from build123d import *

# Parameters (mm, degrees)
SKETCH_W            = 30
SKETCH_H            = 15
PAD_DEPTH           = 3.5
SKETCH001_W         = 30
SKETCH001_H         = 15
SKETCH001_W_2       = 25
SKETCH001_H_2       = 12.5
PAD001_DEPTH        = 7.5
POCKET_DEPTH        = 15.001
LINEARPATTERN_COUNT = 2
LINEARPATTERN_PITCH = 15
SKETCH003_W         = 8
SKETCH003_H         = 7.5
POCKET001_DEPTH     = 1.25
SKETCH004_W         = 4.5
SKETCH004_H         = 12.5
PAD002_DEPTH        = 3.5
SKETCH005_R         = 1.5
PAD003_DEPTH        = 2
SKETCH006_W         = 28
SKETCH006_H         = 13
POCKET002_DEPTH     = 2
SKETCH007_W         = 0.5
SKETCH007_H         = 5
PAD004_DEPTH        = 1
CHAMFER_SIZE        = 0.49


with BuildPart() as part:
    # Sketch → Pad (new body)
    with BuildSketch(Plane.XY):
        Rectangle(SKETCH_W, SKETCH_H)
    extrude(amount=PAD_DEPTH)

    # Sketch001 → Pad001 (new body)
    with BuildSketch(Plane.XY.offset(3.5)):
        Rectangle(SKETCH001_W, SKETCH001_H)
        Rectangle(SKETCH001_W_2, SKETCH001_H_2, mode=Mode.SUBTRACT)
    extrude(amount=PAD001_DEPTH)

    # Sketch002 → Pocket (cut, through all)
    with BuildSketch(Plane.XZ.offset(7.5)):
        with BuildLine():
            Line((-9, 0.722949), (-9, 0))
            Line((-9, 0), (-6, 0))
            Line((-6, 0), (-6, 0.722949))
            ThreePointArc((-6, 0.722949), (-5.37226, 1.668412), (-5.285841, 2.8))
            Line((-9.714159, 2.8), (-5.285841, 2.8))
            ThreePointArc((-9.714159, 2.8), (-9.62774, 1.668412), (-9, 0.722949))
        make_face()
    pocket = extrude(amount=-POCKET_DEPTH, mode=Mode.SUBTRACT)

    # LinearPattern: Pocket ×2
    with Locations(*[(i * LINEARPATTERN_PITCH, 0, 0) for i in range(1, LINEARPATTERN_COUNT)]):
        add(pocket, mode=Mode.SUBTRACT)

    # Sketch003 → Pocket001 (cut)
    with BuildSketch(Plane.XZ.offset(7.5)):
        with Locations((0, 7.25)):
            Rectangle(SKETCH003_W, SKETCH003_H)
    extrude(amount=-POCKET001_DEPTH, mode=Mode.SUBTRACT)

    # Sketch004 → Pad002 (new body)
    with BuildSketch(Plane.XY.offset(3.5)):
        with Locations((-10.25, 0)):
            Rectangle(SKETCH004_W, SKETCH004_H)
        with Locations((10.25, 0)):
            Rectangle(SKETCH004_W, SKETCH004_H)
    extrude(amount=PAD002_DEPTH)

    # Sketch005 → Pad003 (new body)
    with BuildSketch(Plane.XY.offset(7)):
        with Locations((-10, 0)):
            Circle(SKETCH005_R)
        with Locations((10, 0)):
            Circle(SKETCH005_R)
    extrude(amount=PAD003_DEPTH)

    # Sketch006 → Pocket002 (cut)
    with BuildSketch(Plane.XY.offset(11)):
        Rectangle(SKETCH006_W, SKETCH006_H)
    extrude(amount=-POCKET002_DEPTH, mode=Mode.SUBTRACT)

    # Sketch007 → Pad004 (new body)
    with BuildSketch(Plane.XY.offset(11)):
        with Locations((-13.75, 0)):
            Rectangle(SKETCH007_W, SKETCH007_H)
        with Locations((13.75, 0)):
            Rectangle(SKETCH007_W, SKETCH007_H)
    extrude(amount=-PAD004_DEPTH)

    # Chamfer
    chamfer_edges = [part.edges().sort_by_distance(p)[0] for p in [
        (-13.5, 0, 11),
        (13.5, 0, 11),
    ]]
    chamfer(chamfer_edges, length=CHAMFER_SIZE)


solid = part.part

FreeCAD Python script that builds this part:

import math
import FreeCAD as App
import Part
import Sketcher

V = App.Vector


def edges_at(feature, points):
    """Names of the edges that pass closest to the given points."""
    edges = feature.Shape.Edges
    near = lambda p: min(range(len(edges)), key=lambda i: edges[i].distToShape(Part.Vertex(*p))[0])
    return sorted({f"Edge{near(p) + 1}" for p in points})

doc = App.newDocument("Part")
params = doc.addObject("Spreadsheet::Sheet", "Params")
for row, (alias, value) in enumerate([
    ("sketch1_width", "30 mm"),
    ("sketch1_height", "15 mm"),
    ("pad1_length", "3.5 mm"),
    ("sketch2_width", "30 mm"),
    ("sketch2_width2", "25 mm"),
    ("sketch2_height", "15 mm"),
    ("sketch2_height2", "12.5 mm"),
    ("pad2_length", "7.5 mm"),
    ("sketch3_width", "3 mm"),
    ("linearpattern_pitch", "15 mm"),
    ("sketch4_width", "8 mm"),
    ("sketch4_height", "7.5 mm"),
    ("pocket2_length", "1.25 mm"),
    ("sketch5_width", "4.5 mm"),
    ("sketch5_height", "12.5 mm"),
    ("pad3_length", "3.5 mm"),
    ("sketch6_diameter", "3 mm"),
    ("pad4_length", "2 mm"),
    ("sketch7_width", "28 mm"),
    ("sketch7_height", "13 mm"),
    ("pocket3_length", "2 mm"),
    ("sketch8_height", "5 mm"),
    ("sketch8_width", "0.5 mm"),
    ("pad5_length", "1 mm"),
    ("chamfer_size", "0.49 mm"),
], start=1):
    params.set(f"A{row}", alias)
    params.set(f"B{row}", "=" + value)
    params.setAlias(f"B{row}", alias)

body = doc.addObject("PartDesign::Body", "Body")

sketch1 = doc.addObject("Sketcher::SketchObject", "Sketch")
body.addObject(sketch1)
sketch1.AttachmentSupport = (doc.XY_Plane, [""])
sketch1.MapMode = "FlatFace"
sketch1.addGeometry([
    Part.LineSegment(V(-15, 7.5, 0), V(-15, -7.5, 0)),
    Part.LineSegment(V(-15, -7.5, 0), V(15, -7.5, 0)),
    Part.LineSegment(V(15, -7.5, 0), V(15, 7.5, 0)),
    Part.LineSegment(V(15, 7.5, 0), V(-15, 7.5, 0)),
], False)
sketch1.addConstraint([
    Sketcher.Constraint("Coincident", 0, 2, 1, 1),
    Sketcher.Constraint("Coincident", 1, 2, 2, 1),
    Sketcher.Constraint("Coincident", 2, 2, 3, 1),
    Sketcher.Constraint("Coincident", 3, 2, 0, 1),
    Sketcher.Constraint("Vertical", 0),
    Sketcher.Constraint("Horizontal", 1),
    Sketcher.Constraint("Vertical", 2),
    Sketcher.Constraint("Horizontal", 3),
    Sketcher.Constraint("Symmetric", 0, 2, 2, 2, -1, 1),
    Sketcher.Constraint("DistanceX", 1, 1, 1, 2, 30.0),
    Sketcher.Constraint("DistanceY", 0, 2, 0, 1, 15.0),
])
sketch1.setExpression("Constraints[9]", "Params.sketch1_width")
sketch1.setExpression("Constraints[10]", "Params.sketch1_height")
pad1 = doc.addObject("PartDesign::Pad", "Pad")
body.addObject(pad1)
pad1.Profile = sketch1
pad1.setExpression("Length", "Params.pad1_length")

sketch2 = doc.addObject("Sketcher::SketchObject", "Sketch001")
body.addObject(sketch2)
sketch2.AttachmentSupport = (doc.XY_Plane, [""])
sketch2.MapMode = "FlatFace"
sketch2.AttachmentOffset = App.Placement(V(0, 0, 3.5), App.Rotation())
sketch2.addGeometry([
    Part.LineSegment(V(-15, 7.5, 0), V(-15, -7.5, 0)),
    Part.LineSegment(V(-15, -7.5, 0), V(15, -7.5, 0)),
    Part.LineSegment(V(15, -7.5, 0), V(15, 7.5, 0)),
    Part.LineSegment(V(15, 7.5, 0), V(-15, 7.5, 0)),
    Part.LineSegment(V(12.5, -6.25, 0), V(-12.5, -6.25, 0)),
    Part.LineSegment(V(-12.5, -6.25, 0), V(-12.5, 6.25, 0)),
    Part.LineSegment(V(-12.5, 6.25, 0), V(12.5, 6.25, 0)),
    Part.LineSegment(V(12.5, 6.25, 0), V(12.5, -6.25, 0)),
], False)
sketch2.addConstraint([
    Sketcher.Constraint("Coincident", 0, 2, 1, 1),
    Sketcher.Constraint("Coincident", 1, 2, 2, 1),
    Sketcher.Constraint("Coincident", 2, 2, 3, 1),
    Sketcher.Constraint("Coincident", 3, 2, 0, 1),
    Sketcher.Constraint("Coincident", 4, 2, 5, 1),
    Sketcher.Constraint("Coincident", 5, 2, 6, 1),
    Sketcher.Constraint("Coincident", 6, 2, 7, 1),
    Sketcher.Constraint("Coincident", 7, 2, 4, 1),
    Sketcher.Constraint("Vertical", 0),
    Sketcher.Constraint("Horizontal", 1),
    Sketcher.Constraint("Vertical", 2),
    Sketcher.Constraint("Horizontal", 3),
    Sketcher.Constraint("Horizontal", 4),
    Sketcher.Constraint("Vertical", 5),
    Sketcher.Constraint("Horizontal", 6),
    Sketcher.Constraint("Vertical", 7),
    Sketcher.Constraint("Symmetric", 0, 2, 2, 2, -1, 1),
    Sketcher.Constraint("Symmetric", 4, 2, 6, 2, -1, 1),
    Sketcher.Constraint("DistanceX", 1, 1, 1, 2, 30.0),
    Sketcher.Constraint("DistanceX", 4, 2, 4, 1, 25.0),
    Sketcher.Constraint("DistanceY", 0, 2, 0, 1, 15.0),
    Sketcher.Constraint("DistanceY", 5, 1, 5, 2, 12.5),
])
sketch2.setExpression("Constraints[18]", "Params.sketch2_width")
sketch2.setExpression("Constraints[19]", "Params.sketch2_width2")
sketch2.setExpression("Constraints[20]", "Params.sketch2_height")
sketch2.setExpression("Constraints[21]", "Params.sketch2_height2")
pad2 = doc.addObject("PartDesign::Pad", "Pad001")
body.addObject(pad2)
pad2.Profile = sketch2
pad2.setExpression("Length", "Params.pad2_length")

sketch3 = doc.addObject("Sketcher::SketchObject", "Sketch002")
body.addObject(sketch3)
sketch3.AttachmentSupport = (doc.XZ_Plane, [""])
sketch3.MapMode = "FlatFace"
sketch3.AttachmentOffset = App.Placement(V(0, 0, 7.5), App.Rotation())
sketch3.addGeometry([
    Part.LineSegment(V(-9, 0.722949, 0), V(-9, 0, 0)),
    Part.LineSegment(V(-9, 0, 0), V(-6, 0, 0)),
    Part.LineSegment(V(-6, 0, 0), V(-6, 0.722949, 0)),
    Part.ArcOfCircle(Part.Circle(V(-7.500003, 2.400001, 0), V(0, 0, 1), 2.250002), math.radians(-48.189652), math.radians(10.240314)),
    Part.LineSegment(V(-5.285841, 2.8, 0), V(-9.714159, 2.8, 0)),
    Part.ArcOfCircle(Part.Circle(V(-7.499997, 2.400001, 0), V(0, 0, 1), 2.250002), math.radians(169.759686), math.radians(228.189652)),
], False)
sketch3.addConstraint([
    Sketcher.Constraint("Coincident", 0, 2, 1, 1),
    Sketcher.Constraint("Coincident", 1, 2, 2, 1),
    Sketcher.Constraint("Coincident", 2, 2, 3, 1),
    Sketcher.Constraint("Coincident", 3, 2, 4, 1),
    Sketcher.Constraint("Coincident", 4, 2, 5, 1),
    Sketcher.Constraint("Coincident", 5, 2, 0, 1),
    Sketcher.Constraint("Vertical", 0),
    Sketcher.Constraint("Horizontal", 1),
    Sketcher.Constraint("Vertical", 2),
    Sketcher.Constraint("Horizontal", 4),
    Sketcher.Constraint("Coincident", 5, 3, 3, 3),
    Sketcher.Constraint("Equal", 3, 5),
    Sketcher.Constraint("PointOnObject", 0, 2, -1),
    Sketcher.Constraint("Horizontal", 2, 2, 5, 2),
    Sketcher.Constraint("DistanceX", 1, 1, 1, 2, 3.0),
    Sketcher.Constraint("DistanceX", 0, 2, -1, 1, 9.0),
    Sketcher.Constraint("DistanceY", -1, 1, 3, 3, 2.400001),
    Sketcher.Constraint("DistanceY", -1, 1, 3, 2, 2.8),
    Sketcher.Constraint("Radius", 3, 2.250002),
])
sketch3.setExpression("Constraints[14]", "Params.sketch3_width")
pocket1 = doc.addObject("PartDesign::Pocket", "Pocket")
body.addObject(pocket1)
pocket1.Profile = sketch3
pocket1.Type = "ThroughAll"
doc.recompute()

linearpattern = doc.addObject("PartDesign::LinearPattern", "LinearPattern")
body.addObject(linearpattern)
linearpattern.Originals = [pocket1]
linearpattern.Direction = (doc.X_Axis, [""])
linearpattern.Mode = "offset"
linearpattern.setExpression("Offset", "Params.linearpattern_pitch")
linearpattern.Occurrences = 2
body.Tip = linearpattern

sketch4 = doc.addObject("Sketcher::SketchObject", "Sketch003")
body.addObject(sketch4)
sketch4.AttachmentSupport = (doc.XZ_Plane, [""])
sketch4.MapMode = "FlatFace"
sketch4.AttachmentOffset = App.Placement(V(0, 0, 7.5), App.Rotation())
sketch4.addGeometry([
    Part.LineSegment(V(-4, 11, 0), V(-4, 3.5, 0)),
    Part.LineSegment(V(-4, 3.5, 0), V(4, 3.5, 0)),
    Part.LineSegment(V(4, 3.5, 0), V(4, 11, 0)),
    Part.LineSegment(V(4, 11, 0), V(-4, 11, 0)),
], False)
sketch4.addConstraint([
    Sketcher.Constraint("Coincident", 0, 2, 1, 1),
    Sketcher.Constraint("Coincident", 1, 2, 2, 1),
    Sketcher.Constraint("Coincident", 2, 2, 3, 1),
    Sketcher.Constraint("Coincident", 3, 2, 0, 1),
    Sketcher.Constraint("Vertical", 0),
    Sketcher.Constraint("Horizontal", 1),
    Sketcher.Constraint("Vertical", 2),
    Sketcher.Constraint("Horizontal", 3),
    Sketcher.Constraint("DistanceX", 1, 1, 1, 2, 8.0),
    Sketcher.Constraint("DistanceY", 0, 2, 0, 1, 7.5),
    Sketcher.Constraint("DistanceX", 0, 2, -1, 1, 4.0),
    Sketcher.Constraint("DistanceY", -1, 1, 2, 2, 11.0),
])
sketch4.setExpression("Constraints[8]", "Params.sketch4_width")
sketch4.setExpression("Constraints[9]", "Params.sketch4_height")
pocket2 = doc.addObject("PartDesign::Pocket", "Pocket001")
body.addObject(pocket2)
pocket2.Profile = sketch4
pocket2.setExpression("Length", "Params.pocket2_length")

sketch5 = doc.addObject("Sketcher::SketchObject", "Sketch004")
body.addObject(sketch5)
sketch5.AttachmentSupport = (doc.XY_Plane, [""])
sketch5.MapMode = "FlatFace"
sketch5.AttachmentOffset = App.Placement(V(0, 0, 3.5), App.Rotation())
sketch5.addGeometry([
    Part.LineSegment(V(-12.5, 6.25, 0), V(-12.5, -6.25, 0)),
    Part.LineSegment(V(-12.5, -6.25, 0), V(-8, -6.25, 0)),
    Part.LineSegment(V(-8, -6.25, 0), V(-8, 6.25, 0)),
    Part.LineSegment(V(-8, 6.25, 0), V(-12.5, 6.25, 0)),
    Part.LineSegment(V(8, 6.25, 0), V(8, -6.25, 0)),
    Part.LineSegment(V(8, -6.25, 0), V(12.5, -6.25, 0)),
    Part.LineSegment(V(12.5, -6.25, 0), V(12.5, 6.25, 0)),
    Part.LineSegment(V(12.5, 6.25, 0), V(8, 6.25, 0)),
], False)
sketch5.addConstraint([
    Sketcher.Constraint("Coincident", 0, 2, 1, 1),
    Sketcher.Constraint("Coincident", 1, 2, 2, 1),
    Sketcher.Constraint("Coincident", 2, 2, 3, 1),
    Sketcher.Constraint("Coincident", 3, 2, 0, 1),
    Sketcher.Constraint("Coincident", 4, 2, 5, 1),
    Sketcher.Constraint("Coincident", 5, 2, 6, 1),
    Sketcher.Constraint("Coincident", 6, 2, 7, 1),
    Sketcher.Constraint("Coincident", 7, 2, 4, 1),
    Sketcher.Constraint("Vertical", 0),
    Sketcher.Constraint("Horizontal", 1),
    Sketcher.Constraint("Vertical", 2),
    Sketcher.Constraint("Horizontal", 3),
    Sketcher.Constraint("Vertical", 4),
    Sketcher.Constraint("Horizontal", 5),
    Sketcher.Constraint("Vertical", 6),
    Sketcher.Constraint("Horizontal", 7),
    Sketcher.Constraint("Symmetric", 2, 2, 4, 2, -1, 1),
    Sketcher.Constraint("Symmetric", 0, 2, 6, 2, -1, 1),
    Sketcher.Constraint("Horizontal", 1, 2, 4, 2),
    Sketcher.Constraint("DistanceX", 1, 1, 1, 2, 4.5),
    Sketcher.Constraint("DistanceY", 0, 2, 0, 1, 12.5),
    Sketcher.Constraint("DistanceX", 1, 2, -1, 1, 8.0),
])
sketch5.setExpression("Constraints[19]", "Params.sketch5_width")
sketch5.setExpression("Constraints[20]", "Params.sketch5_height")
pad3 = doc.addObject("PartDesign::Pad", "Pad002")
body.addObject(pad3)
pad3.Profile = sketch5
pad3.setExpression("Length", "Params.pad3_length")

sketch6 = doc.addObject("Sketcher::SketchObject", "Sketch005")
body.addObject(sketch6)
sketch6.AttachmentSupport = (doc.XY_Plane, [""])
sketch6.MapMode = "FlatFace"
sketch6.AttachmentOffset = App.Placement(V(0, 0, 7), App.Rotation())
sketch6.addGeometry([
    Part.Circle(V(-10, 0, 0), V(0, 0, 1), 1.5),
    Part.Circle(V(10, 0, 0), V(0, 0, 1), 1.5),
], False)
sketch6.addConstraint([
    Sketcher.Constraint("Equal", 0, 1),
    Sketcher.Constraint("Symmetric", 0, 3, 1, 3, -1, 1),
    Sketcher.Constraint("PointOnObject", 0, 3, -1),
    Sketcher.Constraint("Diameter", 0, 3.0),
    Sketcher.Constraint("DistanceX", 0, 3, -1, 1, 10.0),
])
sketch6.setExpression("Constraints[3]", "Params.sketch6_diameter")
pad4 = doc.addObject("PartDesign::Pad", "Pad003")
body.addObject(pad4)
pad4.Profile = sketch6
pad4.setExpression("Length", "Params.pad4_length")

sketch7 = doc.addObject("Sketcher::SketchObject", "Sketch006")
body.addObject(sketch7)
sketch7.AttachmentSupport = (doc.XY_Plane, [""])
sketch7.MapMode = "FlatFace"
sketch7.AttachmentOffset = App.Placement(V(0, 0, 11), App.Rotation())
sketch7.addGeometry([
    Part.LineSegment(V(-14, 6.5, 0), V(-14, -6.5, 0)),
    Part.LineSegment(V(-14, -6.5, 0), V(14, -6.5, 0)),
    Part.LineSegment(V(14, -6.5, 0), V(14, 6.5, 0)),
    Part.LineSegment(V(14, 6.5, 0), V(-14, 6.5, 0)),
], False)
sketch7.addConstraint([
    Sketcher.Constraint("Coincident", 0, 2, 1, 1),
    Sketcher.Constraint("Coincident", 1, 2, 2, 1),
    Sketcher.Constraint("Coincident", 2, 2, 3, 1),
    Sketcher.Constraint("Coincident", 3, 2, 0, 1),
    Sketcher.Constraint("Vertical", 0),
    Sketcher.Constraint("Horizontal", 1),
    Sketcher.Constraint("Vertical", 2),
    Sketcher.Constraint("Horizontal", 3),
    Sketcher.Constraint("Symmetric", 0, 2, 2, 2, -1, 1),
    Sketcher.Constraint("DistanceX", 1, 1, 1, 2, 28.0),
    Sketcher.Constraint("DistanceY", 0, 2, 0, 1, 13.0),
])
sketch7.setExpression("Constraints[9]", "Params.sketch7_width")
sketch7.setExpression("Constraints[10]", "Params.sketch7_height")
pocket3 = doc.addObject("PartDesign::Pocket", "Pocket002")
body.addObject(pocket3)
pocket3.Profile = sketch7
pocket3.setExpression("Length", "Params.pocket3_length")

sketch8 = doc.addObject("Sketcher::SketchObject", "Sketch007")
body.addObject(sketch8)
sketch8.AttachmentSupport = (doc.XY_Plane, [""])
sketch8.MapMode = "FlatFace"
sketch8.AttachmentOffset = App.Placement(V(0, 0, 11), App.Rotation())
sketch8.addGeometry([
    Part.LineSegment(V(-14, 2.5, 0), V(-14, -2.5, 0)),
    Part.LineSegment(V(-14, -2.5, 0), V(-13.5, -2.5, 0)),
    Part.LineSegment(V(-13.5, -2.5, 0), V(-13.5, 2.5, 0)),
    Part.LineSegment(V(-13.5, 2.5, 0), V(-14, 2.5, 0)),
    Part.LineSegment(V(13.5, 2.5, 0), V(13.5, -2.5, 0)),
    Part.LineSegment(V(13.5, -2.5, 0), V(14, -2.5, 0)),
    Part.LineSegment(V(14, -2.5, 0), V(14, 2.5, 0)),
    Part.LineSegment(V(14, 2.5, 0), V(13.5, 2.5, 0)),
], False)
sketch8.addConstraint([
    Sketcher.Constraint("Coincident", 0, 2, 1, 1),
    Sketcher.Constraint("Coincident", 1, 2, 2, 1),
    Sketcher.Constraint("Coincident", 2, 2, 3, 1),
    Sketcher.Constraint("Coincident", 3, 2, 0, 1),
    Sketcher.Constraint("Coincident", 4, 2, 5, 1),
    Sketcher.Constraint("Coincident", 5, 2, 6, 1),
    Sketcher.Constraint("Coincident", 6, 2, 7, 1),
    Sketcher.Constraint("Coincident", 7, 2, 4, 1),
    Sketcher.Constraint("Vertical", 0),
    Sketcher.Constraint("Horizontal", 1),
    Sketcher.Constraint("Vertical", 2),
    Sketcher.Constraint("Horizontal", 3),
    Sketcher.Constraint("Vertical", 4),
    Sketcher.Constraint("Horizontal", 5),
    Sketcher.Constraint("Vertical", 6),
    Sketcher.Constraint("Horizontal", 7),
    Sketcher.Constraint("Symmetric", 2, 2, 4, 2, -1, 1),
    Sketcher.Constraint("Symmetric", 0, 2, 6, 2, -1, 1),
    Sketcher.Constraint("Horizontal", 1, 2, 4, 2),
    Sketcher.Constraint("DistanceY", 0, 2, 0, 1, 5.0),
    Sketcher.Constraint("DistanceX", 1, 1, 1, 2, 0.5),
    Sketcher.Constraint("DistanceX", 0, 2, -1, 1, 14.0),
])
sketch8.setExpression("Constraints[19]", "Params.sketch8_height")
sketch8.setExpression("Constraints[20]", "Params.sketch8_width")
pad5 = doc.addObject("PartDesign::Pad", "Pad004")
body.addObject(pad5)
pad5.Profile = sketch8
pad5.setExpression("Length", "Params.pad5_length")
pad5.Reversed = True
doc.recompute()

chamfer = doc.addObject("PartDesign::Chamfer", "Chamfer")
body.addObject(chamfer)
chamfer.Base = (pad5, edges_at(pad5, [(-13.5, 0, 11), (13.5, 0, 11)]))
chamfer.setExpression("Size", "Params.chamfer_size")

doc.recompute()
